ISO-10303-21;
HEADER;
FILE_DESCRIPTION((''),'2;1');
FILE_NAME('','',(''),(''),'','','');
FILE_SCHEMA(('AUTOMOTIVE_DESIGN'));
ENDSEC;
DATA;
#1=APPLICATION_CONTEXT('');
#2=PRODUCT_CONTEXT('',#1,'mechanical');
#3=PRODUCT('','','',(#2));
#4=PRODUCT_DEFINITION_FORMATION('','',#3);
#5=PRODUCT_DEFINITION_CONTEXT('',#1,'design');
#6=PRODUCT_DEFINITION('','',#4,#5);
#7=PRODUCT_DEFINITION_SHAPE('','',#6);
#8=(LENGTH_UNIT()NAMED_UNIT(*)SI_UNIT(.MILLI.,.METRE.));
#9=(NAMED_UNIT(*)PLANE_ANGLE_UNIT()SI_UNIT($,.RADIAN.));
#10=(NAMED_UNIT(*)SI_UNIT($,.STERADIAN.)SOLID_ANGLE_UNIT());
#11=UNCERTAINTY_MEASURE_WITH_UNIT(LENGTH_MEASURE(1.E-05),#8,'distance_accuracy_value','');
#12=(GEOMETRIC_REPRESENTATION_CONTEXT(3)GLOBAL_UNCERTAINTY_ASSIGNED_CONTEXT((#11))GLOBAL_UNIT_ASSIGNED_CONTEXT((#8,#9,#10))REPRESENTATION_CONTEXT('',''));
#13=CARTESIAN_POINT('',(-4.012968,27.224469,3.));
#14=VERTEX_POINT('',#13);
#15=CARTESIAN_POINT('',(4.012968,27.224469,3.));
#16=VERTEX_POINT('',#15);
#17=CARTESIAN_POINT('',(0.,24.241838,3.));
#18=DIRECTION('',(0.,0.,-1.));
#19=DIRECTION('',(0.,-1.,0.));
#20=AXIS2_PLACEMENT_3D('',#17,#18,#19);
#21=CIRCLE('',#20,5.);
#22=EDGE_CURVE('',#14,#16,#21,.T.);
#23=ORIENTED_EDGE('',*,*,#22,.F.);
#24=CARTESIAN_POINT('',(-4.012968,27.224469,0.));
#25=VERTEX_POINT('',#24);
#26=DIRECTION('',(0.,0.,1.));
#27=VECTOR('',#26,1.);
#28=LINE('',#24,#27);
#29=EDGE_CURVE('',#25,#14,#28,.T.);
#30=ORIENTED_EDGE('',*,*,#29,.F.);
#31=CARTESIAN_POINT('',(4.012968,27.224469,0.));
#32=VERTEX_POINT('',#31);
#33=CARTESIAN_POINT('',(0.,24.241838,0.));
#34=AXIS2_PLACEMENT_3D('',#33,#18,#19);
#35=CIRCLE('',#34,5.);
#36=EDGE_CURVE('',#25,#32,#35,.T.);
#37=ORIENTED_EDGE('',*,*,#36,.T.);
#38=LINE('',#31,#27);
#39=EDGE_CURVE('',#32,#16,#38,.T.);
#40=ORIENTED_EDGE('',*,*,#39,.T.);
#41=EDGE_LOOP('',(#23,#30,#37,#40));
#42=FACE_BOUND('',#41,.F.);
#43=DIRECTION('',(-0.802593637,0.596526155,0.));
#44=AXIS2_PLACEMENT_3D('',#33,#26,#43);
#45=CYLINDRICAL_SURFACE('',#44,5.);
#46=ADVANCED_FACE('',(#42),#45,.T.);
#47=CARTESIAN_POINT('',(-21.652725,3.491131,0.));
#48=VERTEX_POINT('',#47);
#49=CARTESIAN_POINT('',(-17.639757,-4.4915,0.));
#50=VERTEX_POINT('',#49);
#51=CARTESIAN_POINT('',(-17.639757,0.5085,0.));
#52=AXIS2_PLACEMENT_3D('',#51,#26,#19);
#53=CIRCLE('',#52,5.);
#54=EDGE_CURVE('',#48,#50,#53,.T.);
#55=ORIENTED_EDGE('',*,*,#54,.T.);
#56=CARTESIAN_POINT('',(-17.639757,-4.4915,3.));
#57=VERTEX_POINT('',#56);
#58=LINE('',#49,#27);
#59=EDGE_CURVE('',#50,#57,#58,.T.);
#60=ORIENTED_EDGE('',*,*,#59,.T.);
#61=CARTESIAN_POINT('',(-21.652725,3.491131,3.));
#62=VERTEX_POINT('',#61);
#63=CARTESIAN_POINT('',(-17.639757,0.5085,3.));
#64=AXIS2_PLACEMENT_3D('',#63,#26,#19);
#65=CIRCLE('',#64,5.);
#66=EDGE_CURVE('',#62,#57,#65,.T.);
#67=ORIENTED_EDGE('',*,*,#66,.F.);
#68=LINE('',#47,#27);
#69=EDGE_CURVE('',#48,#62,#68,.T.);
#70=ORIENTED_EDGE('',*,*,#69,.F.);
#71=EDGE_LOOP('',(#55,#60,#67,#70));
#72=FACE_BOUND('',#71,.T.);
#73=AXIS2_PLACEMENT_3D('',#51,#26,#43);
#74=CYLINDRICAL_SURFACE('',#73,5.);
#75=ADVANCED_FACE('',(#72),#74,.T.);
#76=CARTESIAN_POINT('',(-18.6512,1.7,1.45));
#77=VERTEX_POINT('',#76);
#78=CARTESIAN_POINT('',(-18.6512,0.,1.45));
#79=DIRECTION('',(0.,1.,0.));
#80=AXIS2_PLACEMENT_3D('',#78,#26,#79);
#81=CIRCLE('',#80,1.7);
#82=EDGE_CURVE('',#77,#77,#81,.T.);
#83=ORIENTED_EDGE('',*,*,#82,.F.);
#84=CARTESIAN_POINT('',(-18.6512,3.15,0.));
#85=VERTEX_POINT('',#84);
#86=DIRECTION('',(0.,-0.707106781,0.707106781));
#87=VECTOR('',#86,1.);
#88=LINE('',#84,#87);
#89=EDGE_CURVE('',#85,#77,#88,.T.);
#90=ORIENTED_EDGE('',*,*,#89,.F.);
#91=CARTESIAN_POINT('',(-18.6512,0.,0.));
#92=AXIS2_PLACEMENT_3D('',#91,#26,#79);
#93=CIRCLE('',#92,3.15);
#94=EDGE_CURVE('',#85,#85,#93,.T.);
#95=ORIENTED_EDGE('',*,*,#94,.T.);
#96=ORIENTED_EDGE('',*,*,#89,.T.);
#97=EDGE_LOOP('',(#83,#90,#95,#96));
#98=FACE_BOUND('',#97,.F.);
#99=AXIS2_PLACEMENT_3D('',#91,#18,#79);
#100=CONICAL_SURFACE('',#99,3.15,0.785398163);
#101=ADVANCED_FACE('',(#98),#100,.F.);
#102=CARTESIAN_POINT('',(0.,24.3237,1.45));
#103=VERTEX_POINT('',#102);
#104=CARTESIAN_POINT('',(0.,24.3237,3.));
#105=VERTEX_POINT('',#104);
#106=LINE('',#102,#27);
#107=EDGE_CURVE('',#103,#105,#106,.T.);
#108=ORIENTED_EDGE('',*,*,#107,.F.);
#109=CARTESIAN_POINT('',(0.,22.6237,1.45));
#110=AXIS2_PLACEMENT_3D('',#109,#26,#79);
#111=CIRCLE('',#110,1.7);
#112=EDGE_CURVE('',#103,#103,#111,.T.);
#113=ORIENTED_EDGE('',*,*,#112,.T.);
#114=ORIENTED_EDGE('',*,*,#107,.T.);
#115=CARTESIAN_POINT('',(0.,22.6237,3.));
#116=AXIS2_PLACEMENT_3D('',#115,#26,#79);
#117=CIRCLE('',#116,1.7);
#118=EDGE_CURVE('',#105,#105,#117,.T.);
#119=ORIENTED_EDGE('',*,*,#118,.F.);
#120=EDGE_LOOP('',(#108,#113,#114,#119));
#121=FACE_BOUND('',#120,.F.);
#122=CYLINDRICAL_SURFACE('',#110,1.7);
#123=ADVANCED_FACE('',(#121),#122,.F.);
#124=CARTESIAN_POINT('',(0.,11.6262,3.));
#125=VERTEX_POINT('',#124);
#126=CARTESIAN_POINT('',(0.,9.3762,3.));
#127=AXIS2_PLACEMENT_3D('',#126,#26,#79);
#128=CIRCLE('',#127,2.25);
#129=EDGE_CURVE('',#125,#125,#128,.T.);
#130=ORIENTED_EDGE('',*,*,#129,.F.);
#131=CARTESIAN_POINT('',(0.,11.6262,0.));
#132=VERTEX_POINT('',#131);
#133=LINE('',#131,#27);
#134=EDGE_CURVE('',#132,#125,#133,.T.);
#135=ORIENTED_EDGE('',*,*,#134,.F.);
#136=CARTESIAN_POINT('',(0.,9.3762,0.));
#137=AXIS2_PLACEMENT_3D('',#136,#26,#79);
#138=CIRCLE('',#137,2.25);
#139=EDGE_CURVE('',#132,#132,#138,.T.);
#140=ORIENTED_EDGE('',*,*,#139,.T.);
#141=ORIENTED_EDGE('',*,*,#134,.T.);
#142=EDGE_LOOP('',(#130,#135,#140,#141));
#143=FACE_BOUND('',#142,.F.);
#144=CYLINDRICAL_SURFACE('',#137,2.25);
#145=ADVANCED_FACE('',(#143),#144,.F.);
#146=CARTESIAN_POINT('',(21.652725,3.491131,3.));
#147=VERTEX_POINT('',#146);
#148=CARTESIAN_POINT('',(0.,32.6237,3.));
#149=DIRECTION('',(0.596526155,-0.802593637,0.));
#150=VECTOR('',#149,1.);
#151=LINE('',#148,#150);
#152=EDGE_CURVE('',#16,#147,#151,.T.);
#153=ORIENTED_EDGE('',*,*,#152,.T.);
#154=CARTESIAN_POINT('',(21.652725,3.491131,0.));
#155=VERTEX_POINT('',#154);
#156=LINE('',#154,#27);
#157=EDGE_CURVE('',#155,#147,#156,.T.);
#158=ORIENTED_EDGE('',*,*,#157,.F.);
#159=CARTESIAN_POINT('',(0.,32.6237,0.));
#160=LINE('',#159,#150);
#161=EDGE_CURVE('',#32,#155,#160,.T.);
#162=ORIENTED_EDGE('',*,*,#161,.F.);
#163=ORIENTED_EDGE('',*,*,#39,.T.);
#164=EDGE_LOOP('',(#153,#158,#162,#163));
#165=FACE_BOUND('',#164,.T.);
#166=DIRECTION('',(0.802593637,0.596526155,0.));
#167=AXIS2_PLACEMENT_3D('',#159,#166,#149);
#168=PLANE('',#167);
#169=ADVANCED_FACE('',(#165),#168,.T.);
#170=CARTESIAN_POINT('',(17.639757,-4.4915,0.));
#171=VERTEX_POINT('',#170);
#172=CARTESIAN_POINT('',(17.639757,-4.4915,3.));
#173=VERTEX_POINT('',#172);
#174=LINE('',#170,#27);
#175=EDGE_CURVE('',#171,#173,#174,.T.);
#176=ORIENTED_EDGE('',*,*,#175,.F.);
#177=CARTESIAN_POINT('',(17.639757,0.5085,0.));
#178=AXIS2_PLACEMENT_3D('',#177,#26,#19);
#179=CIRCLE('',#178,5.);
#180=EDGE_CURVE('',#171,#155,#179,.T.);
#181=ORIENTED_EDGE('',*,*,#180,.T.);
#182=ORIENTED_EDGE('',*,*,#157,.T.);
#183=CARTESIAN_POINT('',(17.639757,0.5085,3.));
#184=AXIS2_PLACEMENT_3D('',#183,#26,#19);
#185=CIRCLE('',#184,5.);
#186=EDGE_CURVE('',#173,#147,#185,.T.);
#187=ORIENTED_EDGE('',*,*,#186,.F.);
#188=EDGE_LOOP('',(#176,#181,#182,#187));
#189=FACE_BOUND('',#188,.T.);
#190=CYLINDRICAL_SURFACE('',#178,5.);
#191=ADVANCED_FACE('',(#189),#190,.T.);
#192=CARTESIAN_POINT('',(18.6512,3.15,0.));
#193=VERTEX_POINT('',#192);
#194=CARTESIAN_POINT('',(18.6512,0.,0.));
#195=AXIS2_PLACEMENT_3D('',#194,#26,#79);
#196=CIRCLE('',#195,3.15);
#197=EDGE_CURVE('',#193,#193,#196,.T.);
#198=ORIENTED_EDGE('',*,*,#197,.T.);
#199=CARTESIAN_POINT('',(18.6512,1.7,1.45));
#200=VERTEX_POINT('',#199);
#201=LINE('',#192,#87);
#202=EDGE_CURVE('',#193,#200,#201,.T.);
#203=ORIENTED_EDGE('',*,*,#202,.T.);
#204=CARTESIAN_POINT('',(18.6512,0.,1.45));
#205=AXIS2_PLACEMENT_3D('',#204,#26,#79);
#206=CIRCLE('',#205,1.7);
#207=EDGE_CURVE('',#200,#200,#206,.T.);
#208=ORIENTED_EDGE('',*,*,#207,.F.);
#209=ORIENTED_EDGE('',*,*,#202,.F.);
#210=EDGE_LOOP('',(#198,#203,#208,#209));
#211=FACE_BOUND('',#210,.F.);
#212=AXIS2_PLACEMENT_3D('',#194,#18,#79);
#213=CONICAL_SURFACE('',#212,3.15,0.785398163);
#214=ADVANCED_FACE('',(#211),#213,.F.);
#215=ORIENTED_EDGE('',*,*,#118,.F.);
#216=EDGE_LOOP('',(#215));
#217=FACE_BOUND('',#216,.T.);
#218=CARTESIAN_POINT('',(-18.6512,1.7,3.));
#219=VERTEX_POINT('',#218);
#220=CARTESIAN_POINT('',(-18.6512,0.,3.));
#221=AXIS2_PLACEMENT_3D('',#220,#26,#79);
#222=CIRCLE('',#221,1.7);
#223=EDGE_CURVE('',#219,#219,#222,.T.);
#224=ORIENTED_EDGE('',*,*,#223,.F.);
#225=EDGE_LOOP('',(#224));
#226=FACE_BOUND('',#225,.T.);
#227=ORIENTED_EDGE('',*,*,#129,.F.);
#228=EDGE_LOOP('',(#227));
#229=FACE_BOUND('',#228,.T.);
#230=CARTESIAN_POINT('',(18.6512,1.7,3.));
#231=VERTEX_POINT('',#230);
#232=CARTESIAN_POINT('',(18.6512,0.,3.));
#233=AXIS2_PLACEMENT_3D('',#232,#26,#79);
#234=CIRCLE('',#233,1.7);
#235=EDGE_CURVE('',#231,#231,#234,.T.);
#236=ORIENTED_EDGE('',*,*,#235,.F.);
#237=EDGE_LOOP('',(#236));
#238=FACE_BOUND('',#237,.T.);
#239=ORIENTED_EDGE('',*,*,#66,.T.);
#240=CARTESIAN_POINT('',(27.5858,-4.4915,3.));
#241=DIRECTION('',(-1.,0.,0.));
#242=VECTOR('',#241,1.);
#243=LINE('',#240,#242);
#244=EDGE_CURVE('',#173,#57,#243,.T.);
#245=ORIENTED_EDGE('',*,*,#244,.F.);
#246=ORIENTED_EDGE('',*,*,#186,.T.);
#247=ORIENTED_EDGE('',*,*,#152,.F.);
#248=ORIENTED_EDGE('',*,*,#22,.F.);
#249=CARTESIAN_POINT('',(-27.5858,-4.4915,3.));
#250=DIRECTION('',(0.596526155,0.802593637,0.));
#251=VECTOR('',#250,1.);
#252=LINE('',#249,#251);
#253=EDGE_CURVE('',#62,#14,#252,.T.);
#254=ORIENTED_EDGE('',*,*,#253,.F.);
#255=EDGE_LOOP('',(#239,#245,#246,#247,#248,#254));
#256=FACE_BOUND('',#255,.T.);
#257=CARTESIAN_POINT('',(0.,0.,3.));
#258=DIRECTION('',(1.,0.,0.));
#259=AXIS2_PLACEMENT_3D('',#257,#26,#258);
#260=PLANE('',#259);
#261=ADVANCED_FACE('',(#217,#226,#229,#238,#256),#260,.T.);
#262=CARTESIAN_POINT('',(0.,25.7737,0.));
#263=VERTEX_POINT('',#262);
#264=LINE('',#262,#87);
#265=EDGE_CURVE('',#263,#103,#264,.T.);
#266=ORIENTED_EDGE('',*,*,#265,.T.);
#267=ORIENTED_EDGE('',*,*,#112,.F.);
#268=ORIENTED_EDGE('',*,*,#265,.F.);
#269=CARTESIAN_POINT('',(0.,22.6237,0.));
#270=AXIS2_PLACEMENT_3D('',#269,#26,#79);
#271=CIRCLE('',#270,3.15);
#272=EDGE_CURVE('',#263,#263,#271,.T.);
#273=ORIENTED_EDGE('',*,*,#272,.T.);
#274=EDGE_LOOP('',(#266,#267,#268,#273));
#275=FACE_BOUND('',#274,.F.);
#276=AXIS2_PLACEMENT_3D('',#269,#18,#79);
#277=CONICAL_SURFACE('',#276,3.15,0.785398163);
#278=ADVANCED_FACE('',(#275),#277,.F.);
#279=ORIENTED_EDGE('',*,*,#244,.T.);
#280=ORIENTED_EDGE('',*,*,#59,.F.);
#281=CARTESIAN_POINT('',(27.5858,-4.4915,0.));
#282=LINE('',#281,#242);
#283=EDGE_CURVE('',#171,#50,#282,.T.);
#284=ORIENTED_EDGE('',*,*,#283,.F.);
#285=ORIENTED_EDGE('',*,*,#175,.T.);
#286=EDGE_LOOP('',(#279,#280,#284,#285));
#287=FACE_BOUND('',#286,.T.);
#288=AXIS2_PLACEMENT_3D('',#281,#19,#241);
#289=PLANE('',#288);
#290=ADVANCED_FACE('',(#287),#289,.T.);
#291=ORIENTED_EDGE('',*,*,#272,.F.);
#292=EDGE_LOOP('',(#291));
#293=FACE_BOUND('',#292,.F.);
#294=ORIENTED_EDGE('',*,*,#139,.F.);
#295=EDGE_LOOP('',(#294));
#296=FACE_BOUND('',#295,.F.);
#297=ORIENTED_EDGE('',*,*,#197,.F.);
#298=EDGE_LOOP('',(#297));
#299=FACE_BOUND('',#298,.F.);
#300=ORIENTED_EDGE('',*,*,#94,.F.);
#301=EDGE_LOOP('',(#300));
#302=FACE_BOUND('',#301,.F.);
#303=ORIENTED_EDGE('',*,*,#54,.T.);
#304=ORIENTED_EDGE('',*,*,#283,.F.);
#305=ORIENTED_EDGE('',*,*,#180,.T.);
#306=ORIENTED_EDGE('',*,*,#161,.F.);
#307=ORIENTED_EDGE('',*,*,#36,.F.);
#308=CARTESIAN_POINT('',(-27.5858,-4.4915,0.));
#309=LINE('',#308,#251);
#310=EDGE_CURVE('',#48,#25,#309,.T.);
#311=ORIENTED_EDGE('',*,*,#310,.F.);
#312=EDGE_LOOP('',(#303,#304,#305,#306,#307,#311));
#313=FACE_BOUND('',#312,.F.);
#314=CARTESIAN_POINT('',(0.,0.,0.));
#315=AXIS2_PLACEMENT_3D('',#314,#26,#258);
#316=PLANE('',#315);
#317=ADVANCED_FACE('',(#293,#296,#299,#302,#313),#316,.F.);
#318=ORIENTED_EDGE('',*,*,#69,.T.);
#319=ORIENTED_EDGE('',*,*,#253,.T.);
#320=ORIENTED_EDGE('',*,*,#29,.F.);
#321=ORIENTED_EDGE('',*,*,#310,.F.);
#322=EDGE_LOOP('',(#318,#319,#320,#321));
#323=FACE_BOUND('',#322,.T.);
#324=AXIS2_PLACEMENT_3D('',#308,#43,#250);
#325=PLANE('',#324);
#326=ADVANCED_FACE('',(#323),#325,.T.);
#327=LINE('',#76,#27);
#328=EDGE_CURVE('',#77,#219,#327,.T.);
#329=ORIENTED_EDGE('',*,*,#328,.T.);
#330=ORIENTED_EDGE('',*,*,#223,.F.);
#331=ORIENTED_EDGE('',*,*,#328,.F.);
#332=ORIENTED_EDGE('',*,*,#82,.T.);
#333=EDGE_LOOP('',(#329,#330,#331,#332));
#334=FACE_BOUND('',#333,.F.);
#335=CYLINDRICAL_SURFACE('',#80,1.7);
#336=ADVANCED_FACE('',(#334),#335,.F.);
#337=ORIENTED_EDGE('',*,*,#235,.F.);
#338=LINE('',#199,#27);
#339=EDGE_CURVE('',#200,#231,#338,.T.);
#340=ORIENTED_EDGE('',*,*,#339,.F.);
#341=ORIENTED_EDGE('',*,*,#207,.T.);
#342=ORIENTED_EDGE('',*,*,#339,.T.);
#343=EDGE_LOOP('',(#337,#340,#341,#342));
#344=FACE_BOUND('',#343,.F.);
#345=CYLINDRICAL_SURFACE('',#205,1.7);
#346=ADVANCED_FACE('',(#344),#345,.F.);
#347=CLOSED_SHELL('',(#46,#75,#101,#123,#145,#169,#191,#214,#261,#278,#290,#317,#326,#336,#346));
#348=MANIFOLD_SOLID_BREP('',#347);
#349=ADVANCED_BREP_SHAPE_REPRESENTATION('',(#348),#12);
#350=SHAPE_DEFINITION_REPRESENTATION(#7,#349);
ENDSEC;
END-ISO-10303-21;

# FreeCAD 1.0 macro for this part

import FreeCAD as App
import Part
import Sketcher
Q = App.Units.Quantity


def edges_at(feature, points):
    """Names of the edges that pass closest to the given points."""
    edges = feature.Shape.Edges
    near = lambda p: min(range(len(edges)), key=lambda i: edges[i].distToShape(Part.Vertex(*p))[0])
    return sorted({f"Edge{near(p) + 1}" for p in points})


def add_polygon(sketch, points):
    """Adds a closed chain of lines whose ends are joined by coincident constraints."""
    first, n = sketch.GeometryCount, len(points)
    for a, b in zip(points, points[1:] + points[:1]):
        sketch.addGeometry(Part.LineSegment(App.Vector(*a, 0), App.Vector(*b, 0)), False)
    for i in range(n):
        sketch.addConstraint(Sketcher.Constraint("Coincident", first + i, 2, first + (i + 1) % n, 1))

doc = App.newDocument("Part")
params = doc.addObject("Spreadsheet::Sheet", "Params")
for row, (alias, value) in enumerate([
    ("pad1_length", "3 mm"),
    ("sketch2_diameter", "3.4 mm"),
    ("hole_diameter", "3.4 mm"),
    ("hole_depth", "7 mm"),
    ("hole_csink_diameter", "6.3 mm"),
    ("sketch3_diameter", "4.5 mm"),
    ("hole2_diameter", "4.5 mm"),
    ("hole2_depth", "7 mm"),
    ("fillet_radius", "5 mm"),
], start=1):
    params.set(f"A{row}", alias)
    params.set(f"B{row}", "=" + value)
    params.setAlias(f"B{row}", alias)

body = doc.addObject("PartDesign::Body", "Body")

# Sketch on XY plane
sketch1 = body.newObject("Sketcher::SketchObject", "Sketch")
sketch1.AttachmentSupport = (doc.getObject("XY_Plane"), [""])
sketch1.MapMode = "FlatFace"
add_polygon(sketch1, [(0, 32.6237), (-27.5858, -4.4915), (27.5858, -4.4915)])  # lines 0-2
sketch1.addConstraint(Sketcher.Constraint("Horizontal", 1))
sketch1.addConstraint(Sketcher.Constraint("PointOnObject", 2, 2, -2))
sketch1.addConstraint(Sketcher.Constraint("Equal", 0, 2))
sketch1.addConstraint(Sketcher.Constraint("Distance", 0, Q("46.244 mm")))
sketch1.addConstraint(Sketcher.Constraint("DistanceX", 1, 1, 1, 2, Q("55.1716 mm")))
sketch1.addConstraint(Sketcher.Constraint("DistanceY", 0, 2, -1, 1, Q("4.4915 mm")))
pad1 = body.newObject("PartDesign::Pad", "Pad")
pad1.Profile = sketch1
pad1.setExpression("Length", "Params.pad1_length")

# Sketch on XY plane
sketch2 = body.newObject("Sketcher::SketchObject", "Sketch001")
sketch2.AttachmentSupport = (doc.getObject("XY_Plane"), [""])
sketch2.MapMode = "FlatFace"
sketch2.addGeometry(Part.Circle(App.Vector(0, 22.6237, 0), App.Vector(0, 0, 1), 1.7), False)
sketch2.addGeometry(Part.Circle(App.Vector(18.6512, 0, 0), App.Vector(0, 0, 1), 1.7), False)
sketch2.addGeometry(Part.Circle(App.Vector(-18.6512, 0, 0), App.Vector(0, 0, 1), 1.7), False)
sketch2.addConstraint(Sketcher.Constraint("Equal", 0, 1))
sketch2.addConstraint(Sketcher.Constraint("Equal", 1, 2))
sketch2.addConstraint(Sketcher.Constraint("Symmetric", 1, 3, 2, 3, -1, 1))
sketch2.addConstraint(Sketcher.Constraint("PointOnObject", 0, 3, -2))
sketch2.addConstraint(Sketcher.Constraint("PointOnObject", 1, 3, -1))
sketch2.addConstraint(Sketcher.Constraint("Diameter", 0, Q("3.4 mm")))
sketch2.addConstraint(Sketcher.Constraint("DistanceY", -1, 1, 0, 3, Q("22.6237 mm")))
sketch2.addConstraint(Sketcher.Constraint("DistanceX", -1, 1, 1, 3, Q("18.6512 mm")))
sketch2.setExpression("Constraints[5]", "Params.sketch2_diameter")
doc.recompute()
hole = body.newObject("PartDesign::Hole", "Hole")
hole.Profile = sketch2
hole.ThreadType = "None"
hole.setExpression("Diameter", "Params.hole_diameter")
hole.DepthType = "Dimension"
hole.setExpression("Depth", "Params.hole_depth")
hole.DrillPoint = "Angled"
hole.DrillPointAngle = 118
hole.HoleCutType = "Countersink"
hole.setExpression("HoleCutDiameter", "Params.hole_csink_diameter")
hole.HoleCutCountersinkAngle = 90
hole.Reversed = True

# Sketch on XY plane
sketch3 = body.newObject("Sketcher::SketchObject", "Sketch002")
sketch3.AttachmentSupport = (doc.getObject("XY_Plane"), [""])
sketch3.MapMode = "FlatFace"
sketch3.addGeometry(Part.Circle(App.Vector(0, 9.3762, 0), App.Vector(0, 0, 1), 2.25), False)
sketch3.addConstraint(Sketcher.Constraint("PointOnObject", 0, 3, -2))
sketch3.addConstraint(Sketcher.Constraint("Diameter", 0, Q("4.5 mm")))
sketch3.addConstraint(Sketcher.Constraint("DistanceY", -1, 1, 0, 3, Q("9.3762 mm")))
sketch3.setExpression("Constraints[1]", "Params.sketch3_diameter")
doc.recompute()
hole2 = body.newObject("PartDesign::Hole", "Hole001")
hole2.Profile = sketch3
hole2.ThreadType = "None"
hole2.setExpression("Diameter", "Params.hole2_diameter")
hole2.DepthType = "Dimension"
hole2.setExpression("Depth", "Params.hole2_depth")
hole2.DrillPoint = "Angled"
hole2.DrillPointAngle = 118
hole2.Reversed = True
doc.recompute()

fillet = body.newObject("PartDesign::Fillet", "Fillet")
fillet.Base = (hole2, edges_at(hole2, [(0, 32.624, 1.5), (27.586, -4.492, 1.5), (-27.586, -4.492, 1.5)]))
fillet.setExpression("Radius", "Params.fillet_radius")

doc.recompute()
